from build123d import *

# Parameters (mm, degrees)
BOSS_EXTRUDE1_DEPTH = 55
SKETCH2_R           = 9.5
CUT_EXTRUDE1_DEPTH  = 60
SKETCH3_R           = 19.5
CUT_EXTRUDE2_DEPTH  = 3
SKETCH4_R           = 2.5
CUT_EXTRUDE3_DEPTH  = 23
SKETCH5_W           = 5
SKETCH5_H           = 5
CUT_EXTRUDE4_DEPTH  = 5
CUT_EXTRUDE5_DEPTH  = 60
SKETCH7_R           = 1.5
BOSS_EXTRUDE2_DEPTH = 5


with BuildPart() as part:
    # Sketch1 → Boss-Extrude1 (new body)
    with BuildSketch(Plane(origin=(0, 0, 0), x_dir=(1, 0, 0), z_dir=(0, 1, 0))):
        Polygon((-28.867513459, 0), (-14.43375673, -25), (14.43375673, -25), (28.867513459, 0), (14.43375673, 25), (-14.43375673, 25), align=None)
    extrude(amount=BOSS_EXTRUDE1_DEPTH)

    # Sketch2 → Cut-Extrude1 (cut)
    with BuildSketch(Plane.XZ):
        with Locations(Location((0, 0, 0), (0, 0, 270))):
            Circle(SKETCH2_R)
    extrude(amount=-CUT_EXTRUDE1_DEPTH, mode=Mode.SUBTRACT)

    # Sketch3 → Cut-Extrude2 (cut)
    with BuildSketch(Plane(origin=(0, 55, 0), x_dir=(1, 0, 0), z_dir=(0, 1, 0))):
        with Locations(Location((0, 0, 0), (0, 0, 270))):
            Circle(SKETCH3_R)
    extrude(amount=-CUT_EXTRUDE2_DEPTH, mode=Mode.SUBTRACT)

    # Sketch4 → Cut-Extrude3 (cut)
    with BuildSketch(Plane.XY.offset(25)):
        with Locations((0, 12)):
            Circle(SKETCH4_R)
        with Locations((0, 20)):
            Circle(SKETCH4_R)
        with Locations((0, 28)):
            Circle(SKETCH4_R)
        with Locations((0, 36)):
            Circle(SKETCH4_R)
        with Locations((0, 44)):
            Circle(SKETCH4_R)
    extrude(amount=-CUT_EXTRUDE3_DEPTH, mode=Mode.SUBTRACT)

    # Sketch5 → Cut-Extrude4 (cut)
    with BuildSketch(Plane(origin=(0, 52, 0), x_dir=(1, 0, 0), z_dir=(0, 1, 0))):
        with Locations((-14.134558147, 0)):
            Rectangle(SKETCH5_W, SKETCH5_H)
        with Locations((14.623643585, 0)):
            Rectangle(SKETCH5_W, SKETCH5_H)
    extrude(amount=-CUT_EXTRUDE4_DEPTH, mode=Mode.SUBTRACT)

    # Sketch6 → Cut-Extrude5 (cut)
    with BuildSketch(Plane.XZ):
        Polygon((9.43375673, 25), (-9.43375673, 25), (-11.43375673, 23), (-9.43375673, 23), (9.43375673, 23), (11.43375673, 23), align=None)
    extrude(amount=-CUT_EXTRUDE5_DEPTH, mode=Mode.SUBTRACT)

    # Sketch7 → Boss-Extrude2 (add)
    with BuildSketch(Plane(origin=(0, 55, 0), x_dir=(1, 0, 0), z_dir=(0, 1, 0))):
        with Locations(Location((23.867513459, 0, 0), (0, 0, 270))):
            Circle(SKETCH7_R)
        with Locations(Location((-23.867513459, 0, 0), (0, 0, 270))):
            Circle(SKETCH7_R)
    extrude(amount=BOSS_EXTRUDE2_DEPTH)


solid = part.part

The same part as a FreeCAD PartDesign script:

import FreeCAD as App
import Part
import Sketcher

V = App.Vector
Q = App.Units.Quantity

doc = App.newDocument("Part")
body = doc.addObject("PartDesign::Body", "Body")

# Sketch on XZ plane
sketch1 = body.newObject("Sketcher::SketchObject", "Sketch")
sketch1.AttachmentSupport = (doc.getObject("XZ_Plane"), [""])
sketch1.MapMode = "FlatFace"
sketch1.addGeometry([
    Part.LineSegment(V(-29, 0, 0), V(-14, 25, 0)),  # 0
    Part.LineSegment(V(-14, 25, 0), V(14, 25, 0)),  # 1
    Part.LineSegment(V(14, 25, 0), V(29, 0, 0)),  # 2
    Part.LineSegment(V(29, 0, 0), V(14, -25, 0)),  # 3
    Part.LineSegment(V(14, -25, 0), V(-14, -25, 0)),  # 4
    Part.LineSegment(V(-14, -25, 0), V(-29, 0, 0)),  # 5
], False)
sketch1.addConstraint([
    Sketcher.Constraint("Coincident", 0, 2, 1, 1),
    Sketcher.Constraint("Coincident", 1, 2, 2, 1),
    Sketcher.Constraint("Coincident", 2, 2, 3, 1),
    Sketcher.Constraint("Coincident", 3, 2, 4, 1),
    Sketcher.Constraint("Coincident", 4, 2, 5, 1),
    Sketcher.Constraint("Coincident", 5, 2, 0, 1),
    Sketcher.Constraint("Horizontal", 1),
    Sketcher.Constraint("Horizontal", 4),
    Sketcher.Constraint("Symmetric", 0, 2, 3, 2, -1, 1),
    Sketcher.Constraint("Symmetric", 2, 2, 5, 2, -1, 1),
    Sketcher.Constraint("PointOnObject", 2, 2, -1),
    Sketcher.Constraint("Parallel", 2, 5),
    Sketcher.Constraint("Vertical", 1, 2, 3, 2),
    Sketcher.Constraint("Angle", 0, Q("60 deg")),
    Sketcher.Constraint("DistanceY", -1, 1, 0, 2, Q("25 mm")),
    Sketcher.Constraint("DistanceX", 1, 1, 1, 2, Q("28.867513 mm")),
])
pad1 = body.newObject("PartDesign::Pad", "Pad")
pad1.Profile = sketch1
pad1.Length = 55
pad1.Reversed = True

# Sketch on XZ plane
sketch2 = body.newObject("Sketcher::SketchObject", "Sketch001")
sketch2.AttachmentSupport = (doc.getObject("XZ_Plane"), [""])
sketch2.MapMode = "FlatFace"
sketch2.addGeometry(Part.Circle(V(0, 0, 0), V(0, 0, 1), 10), False)
sketch2.addConstraint([
    Sketcher.Constraint("Coincident", 0, 3, -1, 1),
    Sketcher.Constraint("Diameter", 0, Q("19 mm")),
])
pocket1 = body.newObject("PartDesign::Pocket", "Pocket")
pocket1.Profile = sketch2
pocket1.Length = 60

# Sketch on XZ plane
sketch3 = body.newObject("Sketcher::SketchObject", "Sketch002")
sketch3.AttachmentSupport = (doc.getObject("XZ_Plane"), [""])
sketch3.MapMode = "FlatFace"
sketch3.AttachmentOffset = App.Placement(V(0, 0, -55), App.Rotation())
sketch3.addGeometry(Part.Circle(V(0, 0, 0), V(0, 0, 1), 20), False)
sketch3.addConstraint([
    Sketcher.Constraint("Coincident", 0, 3, -1, 1),
    Sketcher.Constraint("Diameter", 0, Q("39 mm")),
])
pocket2 = body.newObject("PartDesign::Pocket", "Pocket001")
pocket2.Profile = sketch3
pocket2.Length = 3
pocket2.Reversed = True

# Sketch on XY plane
sketch4 = body.newObject("Sketcher::SketchObject", "Sketch003")
sketch4.AttachmentSupport = (doc.getObject("XY_Plane"), [""])
sketch4.MapMode = "FlatFace"
sketch4.AttachmentOffset = App.Placement(V(0, 0, 25), App.Rotation())
sketch4.addGeometry([
    Part.Circle(V(0, 12, 0), V(0, 0, 1), 2.5),  # 0
    Part.Circle(V(0, 20, 0), V(0, 0, 1), 2.5),  # 1
    Part.Circle(V(0, 28, 0), V(0, 0, 1), 2.5),  # 2
    Part.Circle(V(0, 36, 0), V(0, 0, 1), 2.5),  # 3
    Part.Circle(V(0, 44, 0), V(0, 0, 1), 2.5),  # 4
], False)
sketch4.addConstraint([
    Sketcher.Constraint("Equal", 0, 1),
    Sketcher.Constraint("Equal", 1, 2),
    Sketcher.Constraint("Equal", 2, 3),
    Sketcher.Constraint("Equal", 3, 4),
    Sketcher.Constraint("PointOnObject", 0, 3, -2),
    Sketcher.Constraint("PointOnObject", 1, 3, -2),
    Sketcher.Constraint("PointOnObject", 2, 3, -2),
    Sketcher.Constraint("PointOnObject", 3, 3, -2),
    Sketcher.Constraint("PointOnObject", 4, 3, -2),
    Sketcher.Constraint("Diameter", 0, Q("5 mm")),
    Sketcher.Constraint("DistanceY", -1, 1, 0, 3, Q("12 mm")),
    Sketcher.Constraint("DistanceY", -1, 1, 1, 3, Q("20 mm")),
    Sketcher.Constraint("DistanceY", -1, 1, 2, 3, Q("28 mm")),
    Sketcher.Constraint("DistanceY", -1, 1, 3, 3, Q("36 mm")),
    Sketcher.Constraint("DistanceY", -1, 1, 4, 3, Q("44 mm")),
])
pocket3 = body.newObject("PartDesign::Pocket", "Pocket002")
pocket3.Profile = sketch4
pocket3.Length = 23

# Sketch on XZ plane
sketch5 = body.newObject("Sketcher::SketchObject", "Sketch004")
sketch5.AttachmentSupport = (doc.getObject("XZ_Plane"), [""])
sketch5.MapMode = "FlatFace"
sketch5.AttachmentOffset = App.Placement(V(0, 0, -52), App.Rotation())
sketch5.addGeometry([
    Part.LineSegment(V(-17, -2, 0), V(-17, 2, 0)),  # 0
    Part.LineSegment(V(-17, 2, 0), V(-12, 2, 0)),  # 1
    Part.LineSegment(V(-12, 2, 0), V(-12, -2, 0)),  # 2
    Part.LineSegment(V(-12, -2, 0), V(-17, -2, 0)),  # 3
    Part.LineSegment(V(12, -2, 0), V(12, 2, 0)),  # 4
    Part.LineSegment(V(12, 2, 0), V(17, 2, 0)),  # 5
    Part.LineSegment(V(17, 2, 0), V(17, -2, 0)),  # 6
    Part.LineSegment(V(17, -2, 0), V(12, -2, 0)),  # 7
], False)
sketch5.addConstraint([
    Sketcher.Constraint("Coincident", 0, 2, 1, 1),
    Sketcher.Constraint("Coincident", 1, 2, 2, 1),
    Sketcher.Constraint("Coincident", 2, 2, 3, 1),
    Sketcher.Constraint("Coincident", 3, 2, 0, 1),
    Sketcher.Constraint("Coincident", 4, 2, 5, 1),
    Sketcher.Constraint("Coincident", 5, 2, 6, 1),
    Sketcher.Constraint("Coincident", 6, 2, 7, 1),
    Sketcher.Constraint("Coincident", 7, 2, 4, 1),
    Sketcher.Constraint("Vertical", 0),
    Sketcher.Constraint("Horizontal", 1),
    Sketcher.Constraint("Vertical", 2),
    Sketcher.Constraint("Horizontal", 3),
    Sketcher.Constraint("Vertical", 4),
    Sketcher.Constraint("Horizontal", 5),
    Sketcher.Constraint("Vertical", 6),
    Sketcher.Constraint("Horizontal", 7),
    Sketcher.Constraint("Horizontal", 1, 2, 4, 2),
    Sketcher.Constraint("Horizontal", 3, 2, 6, 2),
    Sketcher.Constraint("Equal", 3, 5),
    Sketcher.Constraint("Equal", 7, 0),
    Sketcher.Constraint("DistanceX", 1, 1, 1, 2, Q("5 mm")),
    Sketcher.Constraint("DistanceY", -1, 1, 0, 2, Q("2.5 mm")),
    Sketcher.Constraint("DistanceX", 1, 2, 4, 2, Q("23.758202 mm")),
    Sketcher.Constraint("DistanceX", 0, 2, -1, 1, Q("16.634558 mm")),
])
pocket4 = body.newObject("PartDesign::Pocket", "Pocket003")
pocket4.Profile = sketch5
pocket4.Length = 5
pocket4.Reversed = True

# Sketch on XZ plane
sketch6 = body.newObject("Sketcher::SketchObject", "Sketch005")
sketch6.AttachmentSupport = (doc.getObject("XZ_Plane"), [""])
sketch6.MapMode = "FlatFace"
sketch6.addGeometry([
    Part.LineSegment(V(9.4, 25, 0), V(-9.4, 25, 0)),
    Part.LineSegment(V(-9.4, 25, 0), V(-11.4, 23, 0)),
    Part.LineSegment(V(-11.4, 23, 0), V(11.4, 23, 0)),
    Part.LineSegment(V(11.4, 23, 0), V(9.4, 25, 0)),
], False)
sketch6.addConstraint([
    Sketcher.Constraint("Coincident", 0, 2, 1, 1),
    Sketcher.Constraint("Coincident", 1, 2, 2, 1),
    Sketcher.Constraint("Coincident", 2, 2, 3, 1),
    Sketcher.Constraint("Coincident", 3, 2, 0, 1),
    Sketcher.Constraint("Horizontal", 0),
    Sketcher.Constraint("Horizontal", 2),
    Sketcher.Constraint("Perpendicular", 1, 3),
    Sketcher.Constraint("Equal", 1, 3),
    Sketcher.Constraint("DistanceY", -1, 1, 0, 2, Q("25 mm")),
    Sketcher.Constraint("DistanceY", -1, 1, 1, 2, Q("23 mm")),
    Sketcher.Constraint("DistanceX", 0, 2, 0, 1, Q("18.867513 mm")),
    Sketcher.Constraint("DistanceX", 0, 2, -1, 1, Q("9.433757 mm")),
])
pocket5 = body.newObject("PartDesign::Pocket", "Pocket004")
pocket5.Profile = sketch6
pocket5.Length = 60

# Sketch on XZ plane
sketch7 = body.newObject("Sketcher::SketchObject", "Sketch006")
sketch7.AttachmentSupport = (doc.getObject("XZ_Plane"), [""])
sketch7.MapMode = "FlatFace"
sketch7.AttachmentOffset = App.Placement(V(0, 0, -55), App.Rotation())
sketch7.addGeometry([
    Part.Circle(V(23.9, 0, 0), V(0, 0, 1), 1.5),
    Part.Circle(V(-23.9, 0, 0), V(0, 0, 1), 1.5),
], False)
sketch7.addConstraint([
    Sketcher.Constraint("Equal", 0, 1),
    Sketcher.Constraint("Symmetric", 0, 3, 1, 3, -1, 1),
    Sketcher.Constraint("PointOnObject", 0, 3, -1),
    Sketcher.Constraint("Diameter", 0, Q("3 mm")),
    Sketcher.Constraint("DistanceX", -1, 1, 0, 3, Q("23.867513 mm")),
])
pad2 = body.newObject("PartDesign::Pad", "Pad001")
pad2.Profile = sketch7
pad2.Length = 5
pad2.Reversed = True

doc.recompute()
